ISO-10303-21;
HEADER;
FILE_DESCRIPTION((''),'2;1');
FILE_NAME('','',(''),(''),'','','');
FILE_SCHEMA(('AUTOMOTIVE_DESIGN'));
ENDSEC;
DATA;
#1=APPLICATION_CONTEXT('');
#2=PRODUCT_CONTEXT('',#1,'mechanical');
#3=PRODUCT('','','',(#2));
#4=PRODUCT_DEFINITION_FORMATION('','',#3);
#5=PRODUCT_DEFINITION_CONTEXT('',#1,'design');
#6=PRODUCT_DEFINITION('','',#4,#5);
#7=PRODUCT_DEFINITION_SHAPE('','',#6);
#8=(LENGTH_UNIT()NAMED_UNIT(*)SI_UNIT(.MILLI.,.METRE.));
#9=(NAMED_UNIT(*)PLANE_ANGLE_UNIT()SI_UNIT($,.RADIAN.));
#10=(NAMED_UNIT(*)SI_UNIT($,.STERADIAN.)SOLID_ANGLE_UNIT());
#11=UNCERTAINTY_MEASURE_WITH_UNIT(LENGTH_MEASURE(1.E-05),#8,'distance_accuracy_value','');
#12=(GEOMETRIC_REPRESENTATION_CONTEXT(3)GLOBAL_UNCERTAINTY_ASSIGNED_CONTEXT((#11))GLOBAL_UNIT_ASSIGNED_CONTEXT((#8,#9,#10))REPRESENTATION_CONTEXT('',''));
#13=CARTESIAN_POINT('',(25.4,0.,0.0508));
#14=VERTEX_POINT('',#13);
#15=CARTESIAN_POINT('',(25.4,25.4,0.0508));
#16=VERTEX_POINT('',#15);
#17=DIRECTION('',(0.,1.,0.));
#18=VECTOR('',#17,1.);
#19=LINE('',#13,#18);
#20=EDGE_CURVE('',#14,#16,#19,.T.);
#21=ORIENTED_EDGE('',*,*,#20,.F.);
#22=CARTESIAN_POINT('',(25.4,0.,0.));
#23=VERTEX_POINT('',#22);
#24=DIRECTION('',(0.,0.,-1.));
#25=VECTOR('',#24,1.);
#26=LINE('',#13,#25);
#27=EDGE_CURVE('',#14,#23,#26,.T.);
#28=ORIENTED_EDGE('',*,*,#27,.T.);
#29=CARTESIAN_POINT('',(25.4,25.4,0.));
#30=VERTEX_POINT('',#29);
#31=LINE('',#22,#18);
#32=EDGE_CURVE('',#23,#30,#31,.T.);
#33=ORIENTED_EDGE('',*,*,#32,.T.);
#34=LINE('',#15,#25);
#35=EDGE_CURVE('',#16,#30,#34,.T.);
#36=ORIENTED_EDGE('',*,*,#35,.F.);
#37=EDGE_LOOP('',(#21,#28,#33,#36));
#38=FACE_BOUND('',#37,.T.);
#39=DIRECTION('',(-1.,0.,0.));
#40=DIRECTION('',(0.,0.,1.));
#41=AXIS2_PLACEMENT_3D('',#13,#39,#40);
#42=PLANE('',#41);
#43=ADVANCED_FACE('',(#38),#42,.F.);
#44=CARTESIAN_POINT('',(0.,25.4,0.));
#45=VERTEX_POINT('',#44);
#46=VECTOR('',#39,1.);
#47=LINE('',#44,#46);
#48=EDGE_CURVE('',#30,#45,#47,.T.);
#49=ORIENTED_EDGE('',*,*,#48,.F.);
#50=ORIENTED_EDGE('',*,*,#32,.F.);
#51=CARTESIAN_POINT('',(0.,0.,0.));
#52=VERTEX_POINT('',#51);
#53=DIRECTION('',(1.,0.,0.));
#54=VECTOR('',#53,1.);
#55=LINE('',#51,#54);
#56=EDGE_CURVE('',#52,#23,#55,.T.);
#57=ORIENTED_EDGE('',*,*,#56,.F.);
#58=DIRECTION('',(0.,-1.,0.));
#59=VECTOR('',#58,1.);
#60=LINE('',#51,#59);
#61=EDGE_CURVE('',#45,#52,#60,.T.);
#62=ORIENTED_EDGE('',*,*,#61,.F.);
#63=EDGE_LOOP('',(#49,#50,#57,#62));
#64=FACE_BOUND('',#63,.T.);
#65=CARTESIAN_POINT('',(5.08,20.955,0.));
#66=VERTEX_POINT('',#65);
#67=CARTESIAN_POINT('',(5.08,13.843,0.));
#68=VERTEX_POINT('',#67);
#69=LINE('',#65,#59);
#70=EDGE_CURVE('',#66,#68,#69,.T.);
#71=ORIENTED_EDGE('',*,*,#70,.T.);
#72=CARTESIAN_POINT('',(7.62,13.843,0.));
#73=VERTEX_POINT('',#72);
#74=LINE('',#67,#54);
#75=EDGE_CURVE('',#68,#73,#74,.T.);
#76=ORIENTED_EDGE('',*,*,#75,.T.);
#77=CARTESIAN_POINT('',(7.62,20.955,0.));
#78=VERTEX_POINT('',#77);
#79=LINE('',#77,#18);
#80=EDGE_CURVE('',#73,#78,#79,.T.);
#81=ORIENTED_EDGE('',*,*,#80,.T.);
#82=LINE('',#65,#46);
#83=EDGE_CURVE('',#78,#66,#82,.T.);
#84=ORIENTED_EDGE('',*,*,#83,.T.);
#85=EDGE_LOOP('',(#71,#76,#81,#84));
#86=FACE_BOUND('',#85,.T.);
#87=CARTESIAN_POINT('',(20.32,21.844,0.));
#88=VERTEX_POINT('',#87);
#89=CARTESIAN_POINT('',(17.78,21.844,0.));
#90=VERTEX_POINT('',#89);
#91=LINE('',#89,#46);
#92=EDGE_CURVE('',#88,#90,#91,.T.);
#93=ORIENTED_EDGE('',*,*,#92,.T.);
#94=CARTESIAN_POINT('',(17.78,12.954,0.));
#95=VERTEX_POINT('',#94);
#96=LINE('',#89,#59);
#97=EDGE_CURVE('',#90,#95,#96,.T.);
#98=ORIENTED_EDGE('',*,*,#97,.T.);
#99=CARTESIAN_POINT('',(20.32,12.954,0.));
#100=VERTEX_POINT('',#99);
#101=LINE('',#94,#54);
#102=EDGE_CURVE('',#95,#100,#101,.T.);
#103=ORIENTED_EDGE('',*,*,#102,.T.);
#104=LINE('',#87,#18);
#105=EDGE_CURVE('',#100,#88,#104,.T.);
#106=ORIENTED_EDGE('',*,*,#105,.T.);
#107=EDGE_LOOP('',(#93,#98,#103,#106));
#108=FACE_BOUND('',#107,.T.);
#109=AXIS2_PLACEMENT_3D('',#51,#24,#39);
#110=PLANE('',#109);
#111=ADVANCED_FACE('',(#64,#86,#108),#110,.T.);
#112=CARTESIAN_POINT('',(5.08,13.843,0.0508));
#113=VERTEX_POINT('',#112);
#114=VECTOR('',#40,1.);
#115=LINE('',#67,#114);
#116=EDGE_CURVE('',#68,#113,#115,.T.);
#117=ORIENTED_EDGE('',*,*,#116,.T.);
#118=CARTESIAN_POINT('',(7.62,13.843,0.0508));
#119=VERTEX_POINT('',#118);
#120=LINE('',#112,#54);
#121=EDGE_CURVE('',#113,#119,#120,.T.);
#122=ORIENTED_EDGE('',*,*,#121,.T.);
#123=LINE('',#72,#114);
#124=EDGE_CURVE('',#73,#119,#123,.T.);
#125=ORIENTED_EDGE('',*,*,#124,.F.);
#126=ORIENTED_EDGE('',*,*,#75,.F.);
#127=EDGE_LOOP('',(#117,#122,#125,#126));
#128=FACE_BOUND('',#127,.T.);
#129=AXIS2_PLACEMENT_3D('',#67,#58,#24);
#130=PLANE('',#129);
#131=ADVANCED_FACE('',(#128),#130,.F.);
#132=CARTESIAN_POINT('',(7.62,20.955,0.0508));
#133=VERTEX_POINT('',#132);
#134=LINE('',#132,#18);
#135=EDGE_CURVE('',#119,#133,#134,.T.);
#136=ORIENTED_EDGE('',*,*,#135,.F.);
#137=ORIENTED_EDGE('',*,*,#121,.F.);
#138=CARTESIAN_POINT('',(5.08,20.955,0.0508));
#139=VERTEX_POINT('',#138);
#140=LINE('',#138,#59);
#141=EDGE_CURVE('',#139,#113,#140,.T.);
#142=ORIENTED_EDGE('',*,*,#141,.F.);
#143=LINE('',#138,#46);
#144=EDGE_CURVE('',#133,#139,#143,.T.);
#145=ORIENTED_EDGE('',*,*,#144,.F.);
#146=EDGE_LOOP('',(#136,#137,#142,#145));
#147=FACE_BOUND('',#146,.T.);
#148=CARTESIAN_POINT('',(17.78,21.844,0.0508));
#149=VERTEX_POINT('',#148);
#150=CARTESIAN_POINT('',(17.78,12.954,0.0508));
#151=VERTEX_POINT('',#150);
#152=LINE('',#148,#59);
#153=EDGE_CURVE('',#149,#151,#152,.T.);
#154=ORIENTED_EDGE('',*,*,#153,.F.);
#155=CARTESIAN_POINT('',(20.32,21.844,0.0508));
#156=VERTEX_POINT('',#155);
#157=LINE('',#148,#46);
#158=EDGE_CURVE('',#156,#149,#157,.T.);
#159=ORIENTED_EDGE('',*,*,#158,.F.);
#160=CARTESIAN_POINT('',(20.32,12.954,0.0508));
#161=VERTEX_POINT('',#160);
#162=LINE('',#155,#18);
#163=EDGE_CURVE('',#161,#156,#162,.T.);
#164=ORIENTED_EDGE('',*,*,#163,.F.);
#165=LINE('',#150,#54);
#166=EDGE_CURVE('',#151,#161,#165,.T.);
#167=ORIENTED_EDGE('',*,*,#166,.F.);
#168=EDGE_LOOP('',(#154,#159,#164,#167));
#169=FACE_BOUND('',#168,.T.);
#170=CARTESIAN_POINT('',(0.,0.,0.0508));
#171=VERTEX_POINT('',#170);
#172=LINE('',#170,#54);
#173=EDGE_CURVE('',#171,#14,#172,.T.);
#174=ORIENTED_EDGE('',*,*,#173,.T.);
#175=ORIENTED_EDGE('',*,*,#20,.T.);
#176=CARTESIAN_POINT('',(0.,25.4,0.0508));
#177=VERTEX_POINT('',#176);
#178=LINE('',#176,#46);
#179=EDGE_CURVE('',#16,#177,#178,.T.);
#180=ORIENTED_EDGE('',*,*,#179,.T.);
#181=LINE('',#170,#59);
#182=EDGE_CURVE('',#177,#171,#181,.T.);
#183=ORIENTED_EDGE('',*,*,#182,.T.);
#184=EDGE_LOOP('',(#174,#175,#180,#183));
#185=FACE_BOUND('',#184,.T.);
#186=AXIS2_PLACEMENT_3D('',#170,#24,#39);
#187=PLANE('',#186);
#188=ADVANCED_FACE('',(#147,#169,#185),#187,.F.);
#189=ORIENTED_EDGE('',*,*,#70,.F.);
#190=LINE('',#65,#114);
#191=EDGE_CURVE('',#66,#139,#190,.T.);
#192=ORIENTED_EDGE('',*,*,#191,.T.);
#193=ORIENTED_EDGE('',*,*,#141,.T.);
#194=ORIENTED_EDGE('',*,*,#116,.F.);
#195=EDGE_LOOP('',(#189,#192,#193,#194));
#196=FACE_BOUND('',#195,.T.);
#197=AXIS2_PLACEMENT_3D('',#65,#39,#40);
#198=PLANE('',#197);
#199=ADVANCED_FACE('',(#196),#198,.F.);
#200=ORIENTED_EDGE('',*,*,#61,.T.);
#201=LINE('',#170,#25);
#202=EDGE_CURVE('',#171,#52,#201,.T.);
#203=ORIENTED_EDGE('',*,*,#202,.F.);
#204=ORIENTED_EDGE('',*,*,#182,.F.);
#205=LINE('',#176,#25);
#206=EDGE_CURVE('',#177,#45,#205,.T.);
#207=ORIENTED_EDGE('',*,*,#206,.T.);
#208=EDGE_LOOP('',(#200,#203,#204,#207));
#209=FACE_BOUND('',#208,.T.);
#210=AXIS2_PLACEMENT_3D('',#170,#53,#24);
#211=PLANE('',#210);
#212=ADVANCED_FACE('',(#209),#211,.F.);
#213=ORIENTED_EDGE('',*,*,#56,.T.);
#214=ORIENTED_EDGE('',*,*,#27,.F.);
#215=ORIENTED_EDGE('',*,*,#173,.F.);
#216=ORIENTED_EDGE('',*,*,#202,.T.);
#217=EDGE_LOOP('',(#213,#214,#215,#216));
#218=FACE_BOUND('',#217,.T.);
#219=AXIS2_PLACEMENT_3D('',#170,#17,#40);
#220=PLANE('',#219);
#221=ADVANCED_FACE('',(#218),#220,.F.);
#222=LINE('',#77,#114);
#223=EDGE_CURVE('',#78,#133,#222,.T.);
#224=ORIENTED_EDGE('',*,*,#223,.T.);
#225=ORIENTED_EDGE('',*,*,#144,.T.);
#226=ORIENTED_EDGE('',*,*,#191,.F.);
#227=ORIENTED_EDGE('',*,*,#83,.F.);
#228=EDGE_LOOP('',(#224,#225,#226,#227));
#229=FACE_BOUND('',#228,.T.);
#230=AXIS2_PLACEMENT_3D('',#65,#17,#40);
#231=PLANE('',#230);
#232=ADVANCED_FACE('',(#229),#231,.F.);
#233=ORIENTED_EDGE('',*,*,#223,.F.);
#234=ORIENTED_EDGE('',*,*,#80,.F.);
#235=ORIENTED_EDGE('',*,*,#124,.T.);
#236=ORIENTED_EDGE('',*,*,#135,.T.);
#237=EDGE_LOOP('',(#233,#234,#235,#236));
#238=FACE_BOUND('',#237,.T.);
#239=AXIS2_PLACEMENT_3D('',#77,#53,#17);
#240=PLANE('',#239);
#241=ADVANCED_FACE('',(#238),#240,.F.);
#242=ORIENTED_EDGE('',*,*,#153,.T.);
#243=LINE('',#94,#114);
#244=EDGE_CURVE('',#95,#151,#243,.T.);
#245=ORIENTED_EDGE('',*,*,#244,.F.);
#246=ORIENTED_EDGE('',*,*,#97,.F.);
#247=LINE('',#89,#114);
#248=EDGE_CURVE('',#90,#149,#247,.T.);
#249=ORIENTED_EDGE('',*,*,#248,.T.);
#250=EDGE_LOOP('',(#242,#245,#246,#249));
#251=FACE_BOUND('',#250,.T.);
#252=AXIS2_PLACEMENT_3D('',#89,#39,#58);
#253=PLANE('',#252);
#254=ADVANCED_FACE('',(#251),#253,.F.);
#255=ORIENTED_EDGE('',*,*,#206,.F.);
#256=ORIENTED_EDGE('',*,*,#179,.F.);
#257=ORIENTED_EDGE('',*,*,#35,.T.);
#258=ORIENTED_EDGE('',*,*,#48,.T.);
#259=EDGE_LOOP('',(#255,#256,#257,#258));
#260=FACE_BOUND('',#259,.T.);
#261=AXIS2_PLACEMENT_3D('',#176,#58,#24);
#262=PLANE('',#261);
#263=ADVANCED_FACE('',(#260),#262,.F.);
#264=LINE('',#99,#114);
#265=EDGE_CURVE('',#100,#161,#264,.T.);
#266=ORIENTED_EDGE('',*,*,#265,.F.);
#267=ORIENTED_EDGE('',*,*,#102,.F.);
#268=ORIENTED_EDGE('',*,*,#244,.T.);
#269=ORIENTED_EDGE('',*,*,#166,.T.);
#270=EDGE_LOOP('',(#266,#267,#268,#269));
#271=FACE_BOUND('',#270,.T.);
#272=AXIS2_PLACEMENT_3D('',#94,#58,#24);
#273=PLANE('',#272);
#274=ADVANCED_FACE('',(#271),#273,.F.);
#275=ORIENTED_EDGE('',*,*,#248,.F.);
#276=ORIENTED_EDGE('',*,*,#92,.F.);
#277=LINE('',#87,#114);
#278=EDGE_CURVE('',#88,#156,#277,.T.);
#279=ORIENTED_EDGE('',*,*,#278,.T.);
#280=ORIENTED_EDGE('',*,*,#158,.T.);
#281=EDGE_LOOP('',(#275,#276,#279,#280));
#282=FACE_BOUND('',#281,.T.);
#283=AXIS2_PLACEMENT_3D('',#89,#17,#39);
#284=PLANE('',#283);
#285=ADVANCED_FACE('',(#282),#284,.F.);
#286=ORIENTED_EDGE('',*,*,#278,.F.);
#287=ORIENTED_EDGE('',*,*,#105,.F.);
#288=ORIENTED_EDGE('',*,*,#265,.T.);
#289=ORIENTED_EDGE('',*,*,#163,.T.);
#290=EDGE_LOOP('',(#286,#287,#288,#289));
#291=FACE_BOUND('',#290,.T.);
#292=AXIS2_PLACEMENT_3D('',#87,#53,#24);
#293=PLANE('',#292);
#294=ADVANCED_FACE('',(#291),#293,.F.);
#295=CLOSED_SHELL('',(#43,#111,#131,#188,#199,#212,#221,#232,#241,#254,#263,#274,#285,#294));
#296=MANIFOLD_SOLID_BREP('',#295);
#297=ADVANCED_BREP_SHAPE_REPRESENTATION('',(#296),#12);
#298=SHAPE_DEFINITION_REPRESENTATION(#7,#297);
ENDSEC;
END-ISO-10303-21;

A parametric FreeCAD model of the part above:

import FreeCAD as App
import Part
import Sketcher

V = App.Vector
Q = App.Units.Quantity

doc = App.newDocument("Part")
body = doc.addObject("PartDesign::Body", "Body")

# Sketch on XY plane
sketch1 = body.newObject("Sketcher::SketchObject", "Sketch")
sketch1.AttachmentSupport = (doc.getObject("XY_Plane"), [""])
sketch1.MapMode = "FlatFace"
sketch1.addGeometry([
    Part.LineSegment(V(0, 25, 0), V(0, 0, 0)),
    Part.LineSegment(V(0, 0, 0), V(25, 0, 0)),
    Part.LineSegment(V(25, 0, 0), V(25, 25, 0)),
    Part.LineSegment(V(25, 25, 0), V(0, 25, 0)),
], False)
sketch1.addConstraint([
    Sketcher.Constraint("Coincident", 0, 2, 1, 1),
    Sketcher.Constraint("Coincident", 1, 2, 2, 1),
    Sketcher.Constraint("Coincident", 2, 2, 3, 1),
    Sketcher.Constraint("Coincident", 3, 2, 0, 1),
    Sketcher.Constraint("Vertical", 0),
    Sketcher.Constraint("Horizontal", 1),
    Sketcher.Constraint("Vertical", 2),
    Sketcher.Constraint("Horizontal", 3),
    Sketcher.Constraint("Coincident", 0, 2, -1, 1),
    Sketcher.Constraint("Equal", 3, 0),
    Sketcher.Constraint("DistanceX", 1, 1, 1, 2, Q("1 in")),
])
pad1 = body.newObject("PartDesign::Pad", "Pad")
pad1.Profile = sketch1
pad1.Length = Q("0.002 in")

# Sketch on XY plane
sketch2 = body.newObject("Sketcher::SketchObject", "Sketch001")
sketch2.AttachmentSupport = (doc.getObject("XY_Plane"), [""])
sketch2.MapMode = "FlatFace"
sketch2.AttachmentOffset = App.Placement(V(0, 0, 0.002 * 25.4), App.Rotation())
sketch2.addGeometry([
    Part.LineSegment(V(5.1, 21, 0), V(5.1, 13.8, 0)),  # 0
    Part.LineSegment(V(5.1, 13.8, 0), V(7.6, 13.8, 0)),  # 1
    Part.LineSegment(V(7.6, 13.8, 0), V(7.6, 21, 0)),  # 2
    Part.LineSegment(V(7.6, 21, 0), V(5.1, 21, 0)),  # 3
    Part.LineSegment(V(17.8, 21.8, 0), V(17.8, 13, 0)),  # 4
    Part.LineSegment(V(17.8, 13, 0), V(20.3, 13, 0)),  # 5
    Part.LineSegment(V(20.3, 13, 0), V(20.3, 21.8, 0)),  # 6
    Part.LineSegment(V(20.3, 21.8, 0), V(17.8, 21.8, 0)),  # 7
], False)
sketch2.addConstraint([
    Sketcher.Constraint("Coincident", 0, 2, 1, 1),
    Sketcher.Constraint("Coincident", 1, 2, 2, 1),
    Sketcher.Constraint("Coincident", 2, 2, 3, 1),
    Sketcher.Constraint("Coincident", 3, 2, 0, 1),
    Sketcher.Constraint("Coincident", 4, 2, 5, 1),
    Sketcher.Constraint("Coincident", 5, 2, 6, 1),
    Sketcher.Constraint("Coincident", 6, 2, 7, 1),
    Sketcher.Constraint("Coincident", 7, 2, 4, 1),
    Sketcher.Constraint("Vertical", 0),
    Sketcher.Constraint("Horizontal", 1),
    Sketcher.Constraint("Vertical", 2),
    Sketcher.Constraint("Horizontal", 3),
    Sketcher.Constraint("Vertical", 4),
    Sketcher.Constraint("Horizontal", 5),
    Sketcher.Constraint("Vertical", 6),
    Sketcher.Constraint("Horizontal", 7),
    Sketcher.Constraint("Equal", 3, 5),
    Sketcher.Constraint("DistanceX", 1, 1, 1, 2, Q("0.1 in")),
    Sketcher.Constraint("DistanceY", 0, 2, 0, 1, Q("0.28 in")),
    Sketcher.Constraint("DistanceY", 4, 2, 4, 1, Q("0.35 in")),
    Sketcher.Constraint("DistanceX", -1, 1, 0, 2, Q("0.2 in")),
    Sketcher.Constraint("DistanceX", -1, 1, 4, 2, Q("0.7 in")),
    Sketcher.Constraint("DistanceY", -1, 1, 4, 2, Q("0.51 in")),
    Sketcher.Constraint("DistanceY", -1, 1, 0, 2, Q("0.545 in")),
])
pocket1 = body.newObject("PartDesign::Pocket", "Pocket")
pocket1.Profile = sketch2
pocket1.Type = "ThroughAll"

doc.recompute()
